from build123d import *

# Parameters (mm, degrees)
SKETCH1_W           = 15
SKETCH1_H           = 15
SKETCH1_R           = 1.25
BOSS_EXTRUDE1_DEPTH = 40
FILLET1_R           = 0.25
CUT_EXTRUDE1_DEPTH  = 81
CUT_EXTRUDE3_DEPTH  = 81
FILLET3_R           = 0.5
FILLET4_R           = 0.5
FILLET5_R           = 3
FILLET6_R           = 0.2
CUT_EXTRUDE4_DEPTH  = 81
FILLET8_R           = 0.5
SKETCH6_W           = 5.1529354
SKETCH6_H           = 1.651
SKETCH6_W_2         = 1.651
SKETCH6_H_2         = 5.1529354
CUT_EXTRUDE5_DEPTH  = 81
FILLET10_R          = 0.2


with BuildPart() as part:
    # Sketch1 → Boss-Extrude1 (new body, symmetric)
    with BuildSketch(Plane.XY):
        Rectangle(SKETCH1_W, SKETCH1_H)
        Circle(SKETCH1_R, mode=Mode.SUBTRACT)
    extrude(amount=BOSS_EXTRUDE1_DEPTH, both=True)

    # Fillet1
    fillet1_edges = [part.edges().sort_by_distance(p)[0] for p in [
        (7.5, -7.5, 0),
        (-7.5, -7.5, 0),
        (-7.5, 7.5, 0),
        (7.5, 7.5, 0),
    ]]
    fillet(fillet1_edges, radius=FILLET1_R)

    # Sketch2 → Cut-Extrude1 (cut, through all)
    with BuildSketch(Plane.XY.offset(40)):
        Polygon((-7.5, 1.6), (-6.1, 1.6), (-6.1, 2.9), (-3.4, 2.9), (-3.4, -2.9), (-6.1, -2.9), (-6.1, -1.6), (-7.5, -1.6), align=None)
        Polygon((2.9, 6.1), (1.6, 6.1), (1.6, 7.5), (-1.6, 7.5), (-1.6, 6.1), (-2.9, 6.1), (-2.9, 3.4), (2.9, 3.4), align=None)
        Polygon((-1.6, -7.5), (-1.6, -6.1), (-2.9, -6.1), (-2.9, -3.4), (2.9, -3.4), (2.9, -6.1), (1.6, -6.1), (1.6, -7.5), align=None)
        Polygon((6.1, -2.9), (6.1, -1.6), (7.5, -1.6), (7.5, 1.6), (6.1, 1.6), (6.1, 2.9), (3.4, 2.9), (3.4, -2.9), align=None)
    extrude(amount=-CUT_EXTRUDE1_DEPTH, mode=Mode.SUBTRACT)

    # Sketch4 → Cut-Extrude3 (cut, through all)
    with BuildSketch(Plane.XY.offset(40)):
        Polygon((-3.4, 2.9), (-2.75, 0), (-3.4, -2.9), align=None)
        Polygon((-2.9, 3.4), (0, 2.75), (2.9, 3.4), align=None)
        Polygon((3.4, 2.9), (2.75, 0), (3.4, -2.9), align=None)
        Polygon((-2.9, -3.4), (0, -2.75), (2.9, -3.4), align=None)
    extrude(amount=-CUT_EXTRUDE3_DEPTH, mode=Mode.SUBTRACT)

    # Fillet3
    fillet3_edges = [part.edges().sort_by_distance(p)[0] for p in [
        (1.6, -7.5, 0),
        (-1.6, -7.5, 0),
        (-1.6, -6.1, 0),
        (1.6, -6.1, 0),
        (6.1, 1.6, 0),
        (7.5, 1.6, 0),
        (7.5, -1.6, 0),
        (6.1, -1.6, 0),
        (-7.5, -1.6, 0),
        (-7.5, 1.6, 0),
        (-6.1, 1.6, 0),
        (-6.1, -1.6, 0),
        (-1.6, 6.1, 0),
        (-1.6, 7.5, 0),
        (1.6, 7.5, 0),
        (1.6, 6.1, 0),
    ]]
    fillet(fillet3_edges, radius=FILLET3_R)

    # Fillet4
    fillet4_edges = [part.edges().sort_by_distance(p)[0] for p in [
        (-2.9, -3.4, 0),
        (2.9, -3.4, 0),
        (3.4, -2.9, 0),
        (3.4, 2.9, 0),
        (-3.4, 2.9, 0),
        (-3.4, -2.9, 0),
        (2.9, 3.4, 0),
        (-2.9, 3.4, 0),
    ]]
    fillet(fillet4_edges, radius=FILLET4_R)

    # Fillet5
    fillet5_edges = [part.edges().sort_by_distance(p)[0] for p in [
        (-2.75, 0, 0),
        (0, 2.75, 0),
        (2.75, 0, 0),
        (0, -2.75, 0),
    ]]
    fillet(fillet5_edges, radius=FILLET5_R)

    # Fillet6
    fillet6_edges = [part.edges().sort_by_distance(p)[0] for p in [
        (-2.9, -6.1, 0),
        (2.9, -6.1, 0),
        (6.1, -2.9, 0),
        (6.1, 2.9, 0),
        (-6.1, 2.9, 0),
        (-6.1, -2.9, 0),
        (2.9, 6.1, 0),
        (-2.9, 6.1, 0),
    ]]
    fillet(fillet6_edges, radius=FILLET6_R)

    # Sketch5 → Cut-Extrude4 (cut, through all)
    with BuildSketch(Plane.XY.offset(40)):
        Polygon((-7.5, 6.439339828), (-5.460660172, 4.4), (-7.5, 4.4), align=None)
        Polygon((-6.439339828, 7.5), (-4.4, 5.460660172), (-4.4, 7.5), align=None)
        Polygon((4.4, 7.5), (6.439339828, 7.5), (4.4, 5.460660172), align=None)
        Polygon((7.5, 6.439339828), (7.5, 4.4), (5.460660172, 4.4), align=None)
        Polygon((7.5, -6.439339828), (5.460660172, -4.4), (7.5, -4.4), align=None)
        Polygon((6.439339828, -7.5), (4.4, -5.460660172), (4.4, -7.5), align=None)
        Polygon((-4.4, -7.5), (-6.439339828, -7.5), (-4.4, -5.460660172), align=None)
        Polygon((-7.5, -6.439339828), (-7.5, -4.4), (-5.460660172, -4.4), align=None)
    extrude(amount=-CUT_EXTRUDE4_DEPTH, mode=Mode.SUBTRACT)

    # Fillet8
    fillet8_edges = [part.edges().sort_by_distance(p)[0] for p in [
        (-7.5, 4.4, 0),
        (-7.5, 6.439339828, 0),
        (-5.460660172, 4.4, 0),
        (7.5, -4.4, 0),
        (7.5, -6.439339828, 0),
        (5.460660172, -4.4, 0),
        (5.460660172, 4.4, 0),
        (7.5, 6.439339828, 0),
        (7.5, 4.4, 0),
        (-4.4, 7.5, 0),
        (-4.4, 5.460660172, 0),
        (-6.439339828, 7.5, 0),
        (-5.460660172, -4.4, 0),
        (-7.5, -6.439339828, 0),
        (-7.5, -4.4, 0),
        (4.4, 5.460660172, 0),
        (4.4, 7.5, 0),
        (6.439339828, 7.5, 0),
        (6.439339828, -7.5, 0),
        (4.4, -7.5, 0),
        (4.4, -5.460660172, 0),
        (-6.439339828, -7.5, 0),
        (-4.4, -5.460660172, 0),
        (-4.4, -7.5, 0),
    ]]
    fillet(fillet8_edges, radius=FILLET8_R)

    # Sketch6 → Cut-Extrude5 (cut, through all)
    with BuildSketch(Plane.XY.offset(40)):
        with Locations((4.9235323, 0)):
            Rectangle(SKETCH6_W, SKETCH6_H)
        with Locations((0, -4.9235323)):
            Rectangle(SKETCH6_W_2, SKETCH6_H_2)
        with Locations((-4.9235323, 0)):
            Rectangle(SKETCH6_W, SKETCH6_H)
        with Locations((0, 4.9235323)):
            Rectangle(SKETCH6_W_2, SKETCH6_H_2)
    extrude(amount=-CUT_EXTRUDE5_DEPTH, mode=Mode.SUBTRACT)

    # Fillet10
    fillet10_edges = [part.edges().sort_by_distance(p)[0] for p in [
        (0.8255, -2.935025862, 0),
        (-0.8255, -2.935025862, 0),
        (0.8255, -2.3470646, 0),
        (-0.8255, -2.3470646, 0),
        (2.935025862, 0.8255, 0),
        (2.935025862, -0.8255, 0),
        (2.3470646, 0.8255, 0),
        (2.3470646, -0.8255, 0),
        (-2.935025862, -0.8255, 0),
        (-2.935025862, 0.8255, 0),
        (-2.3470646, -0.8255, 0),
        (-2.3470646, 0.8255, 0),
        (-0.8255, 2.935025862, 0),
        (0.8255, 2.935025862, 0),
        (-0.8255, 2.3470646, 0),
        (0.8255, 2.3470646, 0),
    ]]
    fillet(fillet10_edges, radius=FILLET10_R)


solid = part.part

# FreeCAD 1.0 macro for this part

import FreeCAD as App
import Part
import Sketcher

V = App.Vector
Q = App.Units.Quantity


def edges_at(feature, points):
    """Names of the edges that pass closest to the given points."""
    edges = feature.Shape.Edges
    near = lambda p: min(range(len(edges)), key=lambda i: edges[i].distToShape(Part.Vertex(*p))[0])
    return sorted({f"Edge{near(p) + 1}" for p in points})


def add_polygon(sketch, points):
    """Adds a closed chain of lines whose ends are joined by coincident constraints."""
    first, n = sketch.GeometryCount, len(points)
    for a, b in zip(points, points[1:] + points[:1]):
        sketch.addGeometry(Part.LineSegment(App.Vector(*a, 0), App.Vector(*b, 0)), False)
    for i in range(n):
        sketch.addConstraint(Sketcher.Constraint("Coincident", first + i, 2, first + (i + 1) % n, 1))

doc = App.newDocument("Part")
body = doc.addObject("PartDesign::Body", "Body")

# Sketch on XY plane
sketch1 = body.newObject("Sketcher::SketchObject", "Sketch")
sketch1.AttachmentSupport = (doc.getObject("XY_Plane"), [""])
sketch1.MapMode = "FlatFace"
add_polygon(sketch1, [(-7.5, 7.5), (-7.5, -7.5), (7.5, -7.5), (7.5, 7.5)])  # lines 0-3
sketch1.addGeometry(Part.Circle(V(0, 0, 0), V(0, 0, 1), 1.2), False)  # 4
sketch1.addConstraint(Sketcher.Constraint("Vertical", 0))
sketch1.addConstraint(Sketcher.Constraint("Horizontal", 1))
sketch1.addConstraint(Sketcher.Constraint("Vertical", 2))
sketch1.addConstraint(Sketcher.Constraint("Horizontal", 3))
sketch1.addConstraint(Sketcher.Constraint("Coincident", 4, 3, -1, 1))
sketch1.addConstraint(Sketcher.Constraint("Symmetric", 0, 2, 2, 2, -1, 1))
sketch1.addConstraint(Sketcher.Constraint("Equal", 3, 0))
sketch1.addConstraint(Sketcher.Constraint("Diameter", 4, Q("2.5 mm")))
sketch1.addConstraint(Sketcher.Constraint("DistanceX", 1, 1, 1, 2, Q("15 mm")))
pad1 = body.newObject("PartDesign::Pad", "Pad")
pad1.Profile = sketch1
pad1.Length = 80
pad1.Midplane = True
doc.recompute()

fillet = body.newObject("PartDesign::Fillet", "Fillet")
fillet.Base = (pad1, edges_at(pad1, [
    (7.5, -7.5, 0),
    (-7.5, -7.5, 0),
    (-7.5, 7.5, 0),
    (7.5, 7.5, 0),
]))
fillet.Radius = 0.25

# Sketch on XY plane
sketch2 = body.newObject("Sketcher::SketchObject", "Sketch001")
sketch2.AttachmentSupport = (doc.getObject("XY_Plane"), [""])
sketch2.MapMode = "FlatFace"
sketch2.AttachmentOffset = App.Placement(V(0, 0, 40), App.Rotation())
add_polygon(sketch2, [(-6.1, 1.6), (-7.5, 1.6), (-7.5, -1.6), (-6.1, -1.6), (-6.1, -2.9), (-3.4, -2.9), (-3.4, 2.9), (-6.1, 2.9)])  # lines 0-7
add_polygon(sketch2, [(2.9, 6.1), (1.6, 6.1), (1.6, 7.5), (-1.6, 7.5), (-1.6, 6.1), (-2.9, 6.1), (-2.9, 3.4), (2.9, 3.4)])  # lines 8-15
add_polygon(sketch2, [(-1.6, -6.1), (-1.6, -7.5), (1.6, -7.5), (1.6, -6.1), (2.9, -6.1), (2.9, -3.4), (-2.9, -3.4), (-2.9, -6.1)])  # lines 16-23
add_polygon(sketch2, [(6.1, -2.9), (6.1, -1.6), (7.5, -1.6), (7.5, 1.6), (6.1, 1.6), (6.1, 2.9), (3.4, 2.9), (3.4, -2.9)])  # lines 24-31
sketch2.addConstraint(Sketcher.Constraint("Horizontal", 0))
sketch2.addConstraint(Sketcher.Constraint("Vertical", 1))
sketch2.addConstraint(Sketcher.Constraint("Horizontal", 2))
sketch2.addConstraint(Sketcher.Constraint("Vertical", 3))
sketch2.addConstraint(Sketcher.Constraint("Horizontal", 4))
sketch2.addConstraint(Sketcher.Constraint("Vertical", 5))
sketch2.addConstraint(Sketcher.Constraint("Horizontal", 6))
sketch2.addConstraint(Sketcher.Constraint("Vertical", 7))
sketch2.addConstraint(Sketcher.Constraint("Horizontal", 8))
sketch2.addConstraint(Sketcher.Constraint("Vertical", 9))
sketch2.addConstraint(Sketcher.Constraint("Horizontal", 10))
sketch2.addConstraint(Sketcher.Constraint("Vertical", 11))
sketch2.addConstraint(Sketcher.Constraint("Horizontal", 12))
sketch2.addConstraint(Sketcher.Constraint("Vertical", 13))
sketch2.addConstraint(Sketcher.Constraint("Horizontal", 14))
sketch2.addConstraint(Sketcher.Constraint("Vertical", 15))
sketch2.addConstraint(Sketcher.Constraint("Vertical", 16))
sketch2.addConstraint(Sketcher.Constraint("Horizontal", 17))
sketch2.addConstraint(Sketcher.Constraint("Vertical", 18))
sketch2.addConstraint(Sketcher.Constraint("Horizontal", 19))
sketch2.addConstraint(Sketcher.Constraint("Vertical", 20))
sketch2.addConstraint(Sketcher.Constraint("Horizontal", 21))
sketch2.addConstraint(Sketcher.Constraint("Vertical", 22))
sketch2.addConstraint(Sketcher.Constraint("Horizontal", 23))
sketch2.addConstraint(Sketcher.Constraint("Vertical", 24))
sketch2.addConstraint(Sketcher.Constraint("Horizontal", 25))
sketch2.addConstraint(Sketcher.Constraint("Vertical", 26))
sketch2.addConstraint(Sketcher.Constraint("Horizontal", 27))
sketch2.addConstraint(Sketcher.Constraint("Vertical", 28))
sketch2.addConstraint(Sketcher.Constraint("Horizontal", 29))
sketch2.addConstraint(Sketcher.Constraint("Vertical", 30))
sketch2.addConstraint(Sketcher.Constraint("Horizontal", 31))
sketch2.addConstraint(Sketcher.Constraint("Symmetric", 9, 2, 16, 2, -1, 1))
sketch2.addConstraint(Sketcher.Constraint("Symmetric", 11, 2, 18, 2, -1, 1))
sketch2.addConstraint(Sketcher.Constraint("Symmetric", 13, 2, 20, 2, -1, 1))
sketch2.addConstraint(Sketcher.Constraint("Symmetric", 15, 2, 22, 2, -1, 1))
sketch2.addConstraint(Sketcher.Constraint("Symmetric", 7, 2, 24, 2, -1, 1))
sketch2.addConstraint(Sketcher.Constraint("Symmetric", 1, 2, 26, 2, -1, 1))
sketch2.addConstraint(Sketcher.Constraint("Symmetric", 3, 2, 28, 2, -1, 1))
sketch2.addConstraint(Sketcher.Constraint("Symmetric", 5, 2, 30, 2, -1, 1))
sketch2.addConstraint(Sketcher.Constraint("Symmetric", 8, 2, 11, 2, -2))
sketch2.addConstraint(Sketcher.Constraint("Symmetric", 2, 2, 24, 2, -2))
sketch2.addConstraint(Sketcher.Constraint("Horizontal", 6, 2, 28, 2))
sketch2.addConstraint(Sketcher.Constraint("Vertical", 15, 2, 19, 2))
sketch2.addConstraint(Sketcher.Constraint("Equal", 17, 1))
sketch2.addConstraint(Sketcher.Constraint("Equal", 23, 3))
sketch2.addConstraint(Sketcher.Constraint("Equal", 27, 9))
sketch2.addConstraint(Sketcher.Constraint("Equal", 31, 13))
sketch2.addConstraint(Sketcher.Constraint("DistanceX", 0, 2, 0, 1, Q("1.4 mm")))
sketch2.addConstraint(Sketcher.Constraint("DistanceX", 4, 1, 4, 2, Q("2.7 mm")))
sketch2.addConstraint(Sketcher.Constraint("DistanceX", 8, 2, 8, 1, Q("1.3 mm")))
sketch2.addConstraint(Sketcher.Constraint("DistanceX", 10, 2, 10, 1, Q("3.2 mm")))
sketch2.addConstraint(Sketcher.Constraint("DistanceX", 5, 2, 8, 2, Q("5 mm")))
sketch2.addConstraint(Sketcher.Constraint("DistanceY", 4, 2, 8, 2, Q("9 mm")))
pocket1 = body.newObject("PartDesign::Pocket", "Pocket")
pocket1.Profile = sketch2
pocket1.Type = "ThroughAll"

# Sketch on XY plane
sketch3 = body.newObject("Sketcher::SketchObject", "Sketch002")
sketch3.AttachmentSupport = (doc.getObject("XY_Plane"), [""])
sketch3.MapMode = "FlatFace"
sketch3.AttachmentOffset = App.Placement(V(0, 0, 40), App.Rotation())
add_polygon(sketch3, [(-2.8, 0), (-3.4, 2.9), (-3.4, -2.9)])  # lines 0-2
add_polygon(sketch3, [(-2.9, 3.4), (0, 2.8), (2.9, 3.4)])  # lines 3-5
add_polygon(sketch3, [(3.4, 2.9), (2.8, 0), (3.4, -2.9)])  # lines 6-8
add_polygon(sketch3, [(0, -2.8), (-2.9, -3.4), (2.9, -3.4)])  # lines 9-11
sketch3.addConstraint(Sketcher.Constraint("Vertical", 1))
sketch3.addConstraint(Sketcher.Constraint("Horizontal", 5))
sketch3.addConstraint(Sketcher.Constraint("Vertical", 8))
sketch3.addConstraint(Sketcher.Constraint("Horizontal", 10))
sketch3.addConstraint(Sketcher.Constraint("Symmetric", 2, 2, 6, 2, -1, 1))
sketch3.addConstraint(Sketcher.Constraint("Symmetric", 0, 2, 7, 2, -1, 1))
sketch3.addConstraint(Sketcher.Constraint("Symmetric", 4, 2, 9, 2, -1, 1))
sketch3.addConstraint(Sketcher.Constraint("Symmetric", 3, 2, 11, 2, -1, 1))
sketch3.addConstraint(Sketcher.Constraint("PointOnObject", 2, 2, -1))
sketch3.addConstraint(Sketcher.Constraint("PointOnObject", 3, 2, -2))
sketch3.addConstraint(Sketcher.Constraint("Perpendicular", 2, 3))
sketch3.addConstraint(Sketcher.Constraint("Perpendicular", 0, 4))
sketch3.addConstraint(Sketcher.Constraint("Perpendicular", 3, 6))
sketch3.addConstraint(Sketcher.Constraint("Perpendicular", 6, 11))
sketch3.addConstraint(Sketcher.Constraint("Horizontal", 1, 2, 7, 2))
sketch3.addConstraint(Sketcher.Constraint("Equal", 10, 1))
sketch3.addConstraint(Sketcher.Constraint("DistanceX", 5, 2, 5, 1, Q("5.8 mm")))
sketch3.addConstraint(Sketcher.Constraint("DistanceX", 0, 2, -1, 1, Q("3.4 mm")))
sketch3.addConstraint(Sketcher.Constraint("DistanceY", -1, 1, 4, 2, Q("3.4 mm")))
sketch3.addConstraint(Sketcher.Constraint("DistanceX", 2, 2, 6, 2, Q("5.5 mm")))
pocket2 = body.newObject("PartDesign::Pocket", "Pocket001")
pocket2.Profile = sketch3
pocket2.Type = "ThroughAll"
doc.recompute()

fillet2 = body.newObject("PartDesign::Fillet", "Fillet001")
fillet2.Base = (pocket2, edges_at(pocket2, [
    (1.6, -7.5, 0),
    (-1.6, -7.5, 0),
    (-1.6, -6.1, 0),
    (1.6, -6.1, 0),
    (6.1, 1.6, 0),
    (7.5, 1.6, 0),
    (7.5, -1.6, 0),
    (6.1, -1.6, 0),
    (-7.5, -1.6, 0),
    (-7.5, 1.6, 0),
    (-6.1, 1.6, 0),
    (-6.1, -1.6, 0),
    (-1.6, 6.1, 0),
    (-1.6, 7.5, 0),
    (1.6, 7.5, 0),
    (1.6, 6.1, 0),
]))
fillet2.Radius = 0.5
doc.recompute()

fillet3 = body.newObject("PartDesign::Fillet", "Fillet002")
fillet3.Base = (fillet2, edges_at(fillet2, [
    (-2.9, -3.4, 0),
    (2.9, -3.4, 0),
    (3.4, -2.9, 0),
    (3.4, 2.9, 0),
    (-3.4, 2.9, 0),
    (-3.4, -2.9, 0),
    (2.9, 3.4, 0),
    (-2.9, 3.4, 0),
]))
fillet3.Radius = 0.5
doc.recompute()

fillet4 = body.newObject("PartDesign::Fillet", "Fillet003")
fillet4.Base = (fillet3, edges_at(fillet3, [
    (-2.75, 0, 0),
    (0, 2.75, 0),
    (2.75, 0, 0),
    (0, -2.75, 0),
]))
fillet4.Radius = 3
doc.recompute()

fillet5 = body.newObject("PartDesign::Fillet", "Fillet004")
fillet5.Base = (fillet4, edges_at(fillet4, [
    (-2.9, -6.1, 0),
    (2.9, -6.1, 0),
    (6.1, -2.9, 0),
    (6.1, 2.9, 0),
    (-6.1, 2.9, 0),
    (-6.1, -2.9, 0),
    (2.9, 6.1, 0),
    (-2.9, 6.1, 0),
]))
fillet5.Radius = 0.2

# Sketch on XY plane
sketch4 = body.newObject("Sketcher::SketchObject", "Sketch003")
sketch4.AttachmentSupport = (doc.getObject("XY_Plane"), [""])
sketch4.MapMode = "FlatFace"
sketch4.AttachmentOffset = App.Placement(V(0, 0, 40), App.Rotation())
add_polygon(sketch4, [(-5.5, 4.4), (-7.5, 6.4), (-7.5, 4.4)])  # lines 0-2
add_polygon(sketch4, [(-6.4, 7.5), (-4.4, 5.5), (-4.4, 7.5)])  # lines 3-5
add_polygon(sketch4, [(6.4, 7.5), (4.4, 7.5), (4.4, 5.5)])  # lines 6-8
add_polygon(sketch4, [(7.5, 4.4), (7.5, 6.4), (5.5, 4.4)])  # lines 9-11
add_polygon(sketch4, [(5.5, -4.4), (7.5, -6.4), (7.5, -4.4)])  # lines 12-14
add_polygon(sketch4, [(6.4, -7.5), (4.4, -5.5), (4.4, -7.5)])  # lines 15-17
add_polygon(sketch4, [(-6.4, -7.5), (-4.4, -7.5), (-4.4, -5.5)])  # lines 18-20
add_polygon(sketch4, [(-7.5, -4.4), (-7.5, -6.4), (-5.5, -4.4)])  # lines 21-23
sketch4.addConstraint(Sketcher.Constraint("Vertical", 1))
sketch4.addConstraint(Sketcher.Constraint("Horizontal", 2))
sketch4.addConstraint(Sketcher.Constraint("Vertical", 4))
sketch4.addConstraint(Sketcher.Constraint("Horizontal", 5))
sketch4.addConstraint(Sketcher.Constraint("Horizontal", 6))
sketch4.addConstraint(Sketcher.Constraint("Vertical", 7))
sketch4.addConstraint(Sketcher.Constraint("Vertical", 9))
sketch4.addConstraint(Sketcher.Constraint("Horizontal", 11))
sketch4.addConstraint(Sketcher.Constraint("Vertical", 13))
sketch4.addConstraint(Sketcher.Constraint("Horizontal", 14))
sketch4.addConstraint(Sketcher.Constraint("Vertical", 16))
sketch4.addConstraint(Sketcher.Constraint("Horizontal", 17))
sketch4.addConstraint(Sketcher.Constraint("Horizontal", 18))
sketch4.addConstraint(Sketcher.Constraint("Vertical", 19))
sketch4.addConstraint(Sketcher.Constraint("Vertical", 21))
sketch4.addConstraint(Sketcher.Constraint("Horizontal", 23))
sketch4.addConstraint(Sketcher.Constraint("Symmetric", 0, 2, 12, 2, -1, 1))
sketch4.addConstraint(Sketcher.Constraint("Symmetric", 2, 2, 14, 2, -1, 1))
sketch4.addConstraint(Sketcher.Constraint("Symmetric", 3, 2, 15, 2, -1, 1))
sketch4.addConstraint(Sketcher.Constraint("Symmetric", 5, 2, 17, 2, -1, 1))
sketch4.addConstraint(Sketcher.Constraint("Symmetric", 6, 2, 18, 2, -1, 1))
sketch4.addConstraint(Sketcher.Constraint("Symmetric", 9, 2, 21, 2, -1, 1))
sketch4.addConstraint(Sketcher.Constraint("Symmetric", 10, 2, 22, 2, -1, 1))
sketch4.addConstraint(Sketcher.Constraint("Symmetric", 4, 2, 6, 2, -2))
sketch4.addConstraint(Sketcher.Constraint("Symmetric", 0, 2, 9, 2, -2))
sketch4.addConstraint(Sketcher.Constraint("Symmetric", 2, 2, 10, 2, -2))
sketch4.addConstraint(Sketcher.Constraint("Parallel", 0, 3))
sketch4.addConstraint(Sketcher.Constraint("Perpendicular", 3, 8))
sketch4.addConstraint(Sketcher.Constraint("Parallel", 8, 10))
sketch4.addConstraint(Sketcher.Constraint("Perpendicular", 15, 20))
sketch4.addConstraint(Sketcher.Constraint("Horizontal", 3, 2, 7, 2))
sketch4.addConstraint(Sketcher.Constraint("Horizontal", 15, 2, 19, 2))
sketch4.addConstraint(Sketcher.Constraint("Equal", 2, 5))
sketch4.addConstraint(Sketcher.Constraint("DistanceX", 0, 2, -1, 1, Q("7.5 mm")))
sketch4.addConstraint(Sketcher.Constraint("DistanceY", -1, 1, 1, 2, Q("4.4 mm")))
sketch4.addConstraint(Sketcher.Constraint("DistanceX", 3, 2, -1, 1, Q("4.4 mm")))
sketch4.addConstraint(Sketcher.Constraint("DistanceY", -1, 1, 4, 2, Q("7.5 mm")))
sketch4.addConstraint(Sketcher.Constraint("DistanceX", 2, 1, 2, 2, Q("2.03934 mm")))
pocket3 = body.newObject("PartDesign::Pocket", "Pocket002")
pocket3.Profile = sketch4
pocket3.Type = "ThroughAll"
doc.recompute()

fillet6 = body.newObject("PartDesign::Fillet", "Fillet005")
fillet6.Base = (pocket3, edges_at(pocket3, [
    (-7.5, 4.4, 0),
    (-7.5, 6.439, 0),
    (-5.461, 4.4, 0),
    (7.5, -4.4, 0),
    (7.5, -6.439, 0),
    (5.461, -4.4, 0),
    (5.461, 4.4, 0),
    (7.5, 6.439, 0),
    (7.5, 4.4, 0),
    (-4.4, 7.5, 0),
    (-4.4, 5.461, 0),
    (-6.439, 7.5, 0),
    (-5.461, -4.4, 0),
    (-7.5, -6.439, 0),
    (-7.5, -4.4, 0),
    (4.4, 5.461, 0),
    (4.4, 7.5, 0),
    (6.439, 7.5, 0),
    (6.439, -7.5, 0),
    (4.4, -7.5, 0),
    (4.4, -5.461, 0),
    (-6.439, -7.5, 0),
    (-4.4, -5.461, 0),
    (-4.4, -7.5, 0),
]))
fillet6.Radius = 0.5

# Sketch on XY plane
sketch5 = body.newObject("Sketcher::SketchObject", "Sketch004")
sketch5.AttachmentSupport = (doc.getObject("XY_Plane"), [""])
sketch5.MapMode = "FlatFace"
sketch5.AttachmentOffset = App.Placement(V(0, 0, 40), App.Rotation())
add_polygon(sketch5, [(2.3, 0.8), (2.3, -0.8), (7.5, -0.8), (7.5, 0.8)])  # lines 0-3
add_polygon(sketch5, [(-0.8, -2.3), (-0.8, -7.5), (0.8, -7.5), (0.8, -2.3)])  # lines 4-7
add_polygon(sketch5, [(-7.5, 0.8), (-7.5, -0.8), (-2.3, -0.8), (-2.3, 0.8)])  # lines 8-11
add_polygon(sketch5, [(-0.8, 7.5), (-0.8, 2.3), (0.8, 2.3), (0.8, 7.5)])  # lines 12-15
sketch5.addConstraint(Sketcher.Constraint("Vertical", 0))
sketch5.addConstraint(Sketcher.Constraint("Horizontal", 1))
sketch5.addConstraint(Sketcher.Constraint("Vertical", 2))
sketch5.addConstraint(Sketcher.Constraint("Horizontal", 3))
sketch5.addConstraint(Sketcher.Constraint("Vertical", 4))
sketch5.addConstraint(Sketcher.Constraint("Horizontal", 5))
sketch5.addConstraint(Sketcher.Constraint("Vertical", 6))
sketch5.addConstraint(Sketcher.Constraint("Horizontal", 7))
sketch5.addConstraint(Sketcher.Constraint("Vertical", 8))
sketch5.addConstraint(Sketcher.Constraint("Horizontal", 9))
sketch5.addConstraint(Sketcher.Constraint("Vertical", 10))
sketch5.addConstraint(Sketcher.Constraint("Horizontal", 11))
sketch5.addConstraint(Sketcher.Constraint("Vertical", 12))
sketch5.addConstraint(Sketcher.Constraint("Horizontal", 13))
sketch5.addConstraint(Sketcher.Constraint("Vertical", 14))
sketch5.addConstraint(Sketcher.Constraint("Horizontal", 15))
sketch5.addConstraint(Sketcher.Constraint("Symmetric", 2, 2, 8, 2, -1, 1))
sketch5.addConstraint(Sketcher.Constraint("Symmetric", 0, 2, 10, 2, -1, 1))
sketch5.addConstraint(Sketcher.Constraint("Symmetric", 6, 2, 12, 2, -1, 1))
sketch5.addConstraint(Sketcher.Constraint("Symmetric", 4, 2, 14, 2, -1, 1))
sketch5.addConstraint(Sketcher.Constraint("Horizontal", 1, 2, 8, 2))
sketch5.addConstraint(Sketcher.Constraint("Vertical", 7, 2, 12, 2))
sketch5.addConstraint(Sketcher.Constraint("Equal", 15, 0))
sketch5.addConstraint(Sketcher.Constraint("Equal", 11, 4))
sketch5.addConstraint(Sketcher.Constraint("DistanceX", -1, 1, 1, 2, Q("7.5 mm")))
sketch5.addConstraint(Sketcher.Constraint("DistanceY", 4, 2, -1, 1, Q("7.5 mm")))
sketch5.addConstraint(Sketcher.Constraint("DistanceX", 5, 1, 5, 2, Q("1.651 mm")))
sketch5.addConstraint(Sketcher.Constraint("DistanceX", 1, 1, 1, 2, Q("5.152935 mm")))
pocket4 = body.newObject("PartDesign::Pocket", "Pocket003")
pocket4.Profile = sketch5
pocket4.Type = "ThroughAll"
doc.recompute()

fillet7 = body.newObject("PartDesign::Fillet", "Fillet006")
fillet7.Base = (pocket4, edges_at(pocket4, [
    (0.826, -2.935, 0),
    (-0.826, -2.935, 0),
    (0.826, -2.347, 0),
    (-0.826, -2.347, 0),
    (2.935, 0.826, 0),
    (2.935, -0.826, 0),
    (2.347, 0.826, 0),
    (2.347, -0.826, 0),
    (-2.935, -0.826, 0),
    (-2.935, 0.826, 0),
    (-2.347, -0.826, 0),
    (-2.347, 0.826, 0),
    (-0.826, 2.935, 0),
    (0.826, 2.935, 0),
    (-0.826, 2.347, 0),
    (0.826, 2.347, 0),
]))
fillet7.Radius = 0.2

doc.recompute()
